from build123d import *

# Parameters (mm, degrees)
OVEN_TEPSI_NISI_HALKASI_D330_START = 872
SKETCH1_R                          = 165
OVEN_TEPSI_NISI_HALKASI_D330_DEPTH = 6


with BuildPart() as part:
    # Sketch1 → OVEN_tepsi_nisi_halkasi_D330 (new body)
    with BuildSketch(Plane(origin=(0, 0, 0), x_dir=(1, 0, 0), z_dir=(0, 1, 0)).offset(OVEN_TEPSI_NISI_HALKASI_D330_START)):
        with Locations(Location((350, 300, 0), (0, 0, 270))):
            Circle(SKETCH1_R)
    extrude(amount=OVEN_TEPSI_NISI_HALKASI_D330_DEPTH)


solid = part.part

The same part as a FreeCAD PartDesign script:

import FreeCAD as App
import Part
import Sketcher

doc = App.newDocument("Part")
params = doc.addObject("Spreadsheet::Sheet", "Params")
for row, (alias, value) in enumerate([
    ("sketch1_diameter", "330 mm"),
    ("pad1_length", "6 mm"),
], start=1):
    params.set(f"A{row}", alias)
    params.set(f"B{row}", "=" + value)
    params.setAlias(f"B{row}", alias)

body = doc.addObject("PartDesign::Body", "Body")

sketch1 = body.newObject("Sketcher::SketchObject", "Sketch")
sketch1.AttachmentSupport = (doc.getObject("XZ_Plane"), [""])
sketch1.MapMode = "FlatFace"
sketch1.AttachmentOffset = App.Placement(App.Vector(0, 0, -872), App.Rotation())
sketch1.addGeometry(Part.Circle(App.Vector(350, -300, 0), App.Vector(0, 0, 1), 165), False)
sketch1.addConstraint(Sketcher.Constraint("Diameter", 0, 330.0))
sketch1.addConstraint(Sketcher.Constraint("DistanceX", -1, 1, 0, 3, 350.0))
sketch1.addConstraint(Sketcher.Constraint("DistanceY", 0, 3, -1, 1, 300.0))
sketch1.setExpression("Constraints[0]", "Params.sketch1_diameter")
pad1 = body.newObject("PartDesign::Pad", "Pad")
pad1.Profile = sketch1
pad1.setExpression("Length", "Params.pad1_length")
pad1.Reversed = True

doc.recompute()
